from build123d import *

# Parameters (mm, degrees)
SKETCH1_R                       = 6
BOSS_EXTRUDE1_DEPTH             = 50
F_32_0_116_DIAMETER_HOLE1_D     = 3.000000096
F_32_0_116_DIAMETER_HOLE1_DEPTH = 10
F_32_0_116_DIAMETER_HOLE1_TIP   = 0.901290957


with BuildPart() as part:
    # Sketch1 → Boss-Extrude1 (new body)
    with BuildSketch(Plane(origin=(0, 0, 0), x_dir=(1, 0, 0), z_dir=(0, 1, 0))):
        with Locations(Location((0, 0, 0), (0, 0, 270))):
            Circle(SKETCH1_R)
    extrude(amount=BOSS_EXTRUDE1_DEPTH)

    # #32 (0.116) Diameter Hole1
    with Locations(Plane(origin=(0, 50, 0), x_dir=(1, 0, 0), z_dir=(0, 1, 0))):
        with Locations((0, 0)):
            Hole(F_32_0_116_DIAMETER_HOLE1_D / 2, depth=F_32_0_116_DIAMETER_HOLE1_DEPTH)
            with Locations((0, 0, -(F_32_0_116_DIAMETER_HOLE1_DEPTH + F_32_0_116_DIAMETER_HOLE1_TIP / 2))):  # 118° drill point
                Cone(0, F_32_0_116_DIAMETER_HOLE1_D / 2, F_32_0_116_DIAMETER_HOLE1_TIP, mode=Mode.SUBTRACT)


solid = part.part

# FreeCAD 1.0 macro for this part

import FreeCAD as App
import Part
import Sketcher

V = App.Vector

doc = App.newDocument("Part")
params = doc.addObject("Spreadsheet::Sheet", "Params")
for row, (alias, value) in enumerate([
    ("sketch1_diameter", "12 mm"),
    ("pad1_length", "50 mm"),
    ("sketch2_diameter", "3 mm"),
    ("hole_diameter", "3 mm"),
    ("hole_depth", "10 mm"),
], start=1):
    params.set(f"A{row}", alias)
    params.set(f"B{row}", "=" + value)
    params.setAlias(f"B{row}", alias)

body = doc.addObject("PartDesign::Body", "Body")

# Sketch on XZ plane
sketch1 = body.newObject("Sketcher::SketchObject", "Sketch")
sketch1.AttachmentSupport = (doc.getObject("XZ_Plane"), [""])
sketch1.MapMode = "FlatFace"
sketch1.addGeometry(Part.Circle(V(0, 0, 0), V(0, 0, 1), 6), False)
sketch1.addConstraint(Sketcher.Constraint("Coincident", 0, 3, -1, 1))
sketch1.addConstraint(Sketcher.Constraint("Diameter", 0, 12.0))
sketch1.setExpression("Constraints[1]", "Params.sketch1_diameter")
pad1 = body.newObject("PartDesign::Pad", "Pad")
pad1.Profile = sketch1
pad1.setExpression("Length", "Params.pad1_length")
pad1.Reversed = True

# Sketch on XZ plane
sketch2 = body.newObject("Sketcher::SketchObject", "Sketch001")
sketch2.AttachmentSupport = (doc.getObject("XZ_Plane"), [""])
sketch2.MapMode = "FlatFace"
sketch2.AttachmentOffset = App.Placement(V(0, 0, -50), App.Rotation())
sketch2.addGeometry(Part.Circle(V(0, 0, 0), V(0, 0, 1), 1.5), False)
sketch2.addConstraint(Sketcher.Constraint("Coincident", 0, 3, -1, 1))
sketch2.addConstraint(Sketcher.Constraint("Diameter", 0, 3.0))
sketch2.setExpression("Constraints[1]", "Params.sketch2_diameter")
doc.recompute()
hole = body.newObject("PartDesign::Hole", "Hole")
hole.Profile = sketch2
hole.ThreadType = "None"
hole.setExpression("Diameter", "Params.hole_diameter")
hole.DepthType = "Dimension"
hole.setExpression("Depth", "Params.hole_depth")
hole.DrillPoint = "Angled"
hole.DrillPointAngle = 118
hole.Reversed = True

doc.recompute()
